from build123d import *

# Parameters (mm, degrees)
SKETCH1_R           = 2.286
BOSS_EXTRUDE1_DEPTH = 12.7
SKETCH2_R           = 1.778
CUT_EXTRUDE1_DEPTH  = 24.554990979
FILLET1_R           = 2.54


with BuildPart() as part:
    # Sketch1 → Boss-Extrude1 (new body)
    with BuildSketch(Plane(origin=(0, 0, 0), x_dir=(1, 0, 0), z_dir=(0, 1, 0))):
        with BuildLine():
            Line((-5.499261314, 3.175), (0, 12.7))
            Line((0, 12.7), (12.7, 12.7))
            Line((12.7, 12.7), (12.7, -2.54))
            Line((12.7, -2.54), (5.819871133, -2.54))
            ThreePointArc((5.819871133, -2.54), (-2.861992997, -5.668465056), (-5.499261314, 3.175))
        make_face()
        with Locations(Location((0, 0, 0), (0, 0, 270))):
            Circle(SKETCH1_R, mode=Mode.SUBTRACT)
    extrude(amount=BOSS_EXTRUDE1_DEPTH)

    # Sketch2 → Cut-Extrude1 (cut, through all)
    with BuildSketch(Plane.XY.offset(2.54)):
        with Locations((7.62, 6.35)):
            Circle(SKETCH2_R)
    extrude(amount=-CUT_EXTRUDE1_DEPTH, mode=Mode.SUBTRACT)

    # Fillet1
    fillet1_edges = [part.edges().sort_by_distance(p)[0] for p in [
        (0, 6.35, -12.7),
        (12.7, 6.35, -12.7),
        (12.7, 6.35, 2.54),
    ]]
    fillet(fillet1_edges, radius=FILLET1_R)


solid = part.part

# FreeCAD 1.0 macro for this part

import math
import FreeCAD as App
import Part
import Sketcher
from FreeCAD import Vector
Q = App.Units.Quantity


def edges_at(feature, points):
    """Names of the edges that pass closest to the given points."""
    edges = feature.Shape.Edges
    near = lambda p: min(range(len(edges)), key=lambda i: edges[i].distToShape(Part.Vertex(*p))[0])
    return sorted({f"Edge{near(p) + 1}" for p in points})

doc = App.newDocument("Part")
params = doc.addObject("Spreadsheet::Sheet", "Params")
for row, (alias, value) in enumerate([
    ("sketch1_diameter", "0.18 in"),
    ("sketch1_radius", "0.25 in"),
    ("sketch1_width", "0.5 in"),
    ("sketch1_height", "0.6 in"),
    ("pad1_length", "0.5 in"),
    ("sketch2_diameter", "0.14 in"),
    ("fillet_radius", "0.1 in"),
], start=1):
    params.set(f"A{row}", alias)
    params.set(f"B{row}", "=" + value)
    params.setAlias(f"B{row}", alias)

body = doc.addObject("PartDesign::Body", "Body")

# Sketch on XZ plane
sketch1 = doc.addObject("Sketcher::SketchObject", "Sketch")
body.addObject(sketch1)
sketch1.AttachmentSupport = (doc.XZ_Plane, [""])
sketch1.MapMode = "FlatFace"
sketch1.addGeometry([
    Part.LineSegment(Vector(0, -12.7, 0), Vector(-5.5, -3.2, 0)),  # 0
    Part.ArcOfCircle(Part.Circle(Vector(0, 0, 0), Vector(0, 0, 1), 6.3), math.radians(24), math.radians(210)),  # 1
    Part.LineSegment(Vector(5.8, 2.5, 0), Vector(12.7, 2.5, 0)),  # 2
    Part.LineSegment(Vector(12.7, 2.5, 0), Vector(12.7, -12.7, 0)),  # 3
    Part.LineSegment(Vector(12.7, -12.7, 0), Vector(0, -12.7, 0)),  # 4
    Part.Circle(Vector(0, 0, 0), Vector(0, 0, 1), 2.3),  # 5
], False)
sketch1.addConstraint([
    Sketcher.Constraint("Tangent", 0, 2, 1, 2),
    Sketcher.Constraint("Coincident", 1, 1, 2, 1),
    Sketcher.Constraint("Coincident", 2, 2, 3, 1),
    Sketcher.Constraint("Coincident", 3, 2, 4, 1),
    Sketcher.Constraint("Coincident", 4, 2, 0, 1),
    Sketcher.Constraint("Horizontal", 2),
    Sketcher.Constraint("Vertical", 3),
    Sketcher.Constraint("Horizontal", 4),
    Sketcher.Constraint("Coincident", 1, 3, -1, 1),
    Sketcher.Constraint("Coincident", 5, 3, -1, 1),
    Sketcher.Constraint("PointOnObject", 4, 2, -2),
    Sketcher.Constraint("Diameter", 5, Q("0.18 in")),
    Sketcher.Constraint("Radius", 1, Q("0.25 in")),
    Sketcher.Constraint("DistanceX", 4, 2, 4, 1, Q("0.5 in")),
    Sketcher.Constraint("DistanceY", 3, 2, 3, 1, Q("0.6 in")),
    Sketcher.Constraint("Angle", 0, Q("120 deg")),
])
sketch1.setExpression("Constraints[11]", "Params.sketch1_diameter")
sketch1.setExpression("Constraints[12]", "Params.sketch1_radius")
sketch1.setExpression("Constraints[13]", "Params.sketch1_width")
sketch1.setExpression("Constraints[14]", "Params.sketch1_height")
pad1 = doc.addObject("PartDesign::Pad", "Pad")
body.addObject(pad1)
pad1.Profile = sketch1
pad1.setExpression("Length", "Params.pad1_length")
pad1.Reversed = True

# Sketch on XY plane
sketch2 = doc.addObject("Sketcher::SketchObject", "Sketch001")
body.addObject(sketch2)
sketch2.AttachmentSupport = (doc.XY_Plane, [""])
sketch2.MapMode = "FlatFace"
sketch2.AttachmentOffset = App.Placement(Vector(0, 0, 0.1 * 25.4), App.Rotation())
sketch2.addGeometry(Part.Circle(Vector(7.6, 6.3, 0), Vector(0, 0, 1), 1.8), False)
sketch2.addConstraint([
    Sketcher.Constraint("Diameter", 0, Q("0.14 in")),
    Sketcher.Constraint("DistanceX", -1, 1, 0, 3, Q("0.3 in")),
    Sketcher.Constraint("DistanceY", -1, 1, 0, 3, Q("0.25 in")),
])
sketch2.setExpression("Constraints[0]", "Params.sketch2_diameter")
pocket1 = doc.addObject("PartDesign::Pocket", "Pocket")
body.addObject(pocket1)
pocket1.Profile = sketch2
pocket1.Type = "ThroughAll"
doc.recompute()

fillet = doc.addObject("PartDesign::Fillet", "Fillet")
body.addObject(fillet)
fillet.Base = (pocket1, edges_at(pocket1, [(0, 6.35, -12.7), (12.7, 6.35, -12.7), (12.7, 6.35, 2.54)]))
fillet.setExpression("Radius", "Params.fillet_radius")

doc.recompute()
